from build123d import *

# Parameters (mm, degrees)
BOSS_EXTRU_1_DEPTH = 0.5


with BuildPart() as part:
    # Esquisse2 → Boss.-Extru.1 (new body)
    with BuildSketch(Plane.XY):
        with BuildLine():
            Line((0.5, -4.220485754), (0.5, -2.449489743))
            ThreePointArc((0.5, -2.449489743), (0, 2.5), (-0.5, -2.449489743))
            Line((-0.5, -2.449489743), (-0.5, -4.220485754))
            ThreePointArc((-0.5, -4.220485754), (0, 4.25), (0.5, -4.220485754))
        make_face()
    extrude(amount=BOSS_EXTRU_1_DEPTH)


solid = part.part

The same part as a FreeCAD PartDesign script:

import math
import FreeCAD as App
import Part
import Sketcher

V = App.Vector
Q = App.Units.Quantity

doc = App.newDocument("Part")
body = doc.addObject("PartDesign::Body", "Body")

sketch1 = doc.addObject("Sketcher::SketchObject", "Sketch")
body.addObject(sketch1)
sketch1.AttachmentSupport = (doc.XY_Plane, [""])
sketch1.MapMode = "FlatFace"
sketch1.addGeometry(Part.LineSegment(V(0.5, -2.4, 0), V(0.5, -4.2, 0)), False)
sketch1.addGeometry(Part.ArcOfCircle(Part.Circle(V(0, 0, 0), V(0, 0, 1), 4.2), math.radians(-83), math.radians(263)), False)
sketch1.addGeometry(Part.LineSegment(V(-0.5, -4.2, 0), V(-0.5, -2.4, 0)), False)
sketch1.addGeometry(Part.ArcOfCircle(Part.Circle(V(0, 0, 0), V(0, 0, 1), 2.5), math.radians(-78), math.radians(258)), False)
sketch1.addConstraint(Sketcher.Constraint("Coincident", 0, 2, 1, 1))
sketch1.addConstraint(Sketcher.Constraint("Coincident", 1, 2, 2, 1))
sketch1.addConstraint(Sketcher.Constraint("Coincident", 2, 2, 3, 2))
sketch1.addConstraint(Sketcher.Constraint("Coincident", 3, 1, 0, 1))
sketch1.addConstraint(Sketcher.Constraint("Vertical", 0))
sketch1.addConstraint(Sketcher.Constraint("Vertical", 2))
sketch1.addConstraint(Sketcher.Constraint("Coincident", 1, 3, -1, 1))
sketch1.addConstraint(Sketcher.Constraint("Coincident", 3, 3, -1, 1))
sketch1.addConstraint(Sketcher.Constraint("Horizontal", 0, 2, 1, 2))
sketch1.addConstraint(Sketcher.Constraint("Radius", 3, Q("2.5 mm")))
sketch1.addConstraint(Sketcher.Constraint("Radius", 1, Q("4.25 mm")))
sketch1.addConstraint(Sketcher.Constraint("DistanceX", 1, 2, 0, 2, Q("1 mm")))
pad1 = doc.addObject("PartDesign::Pad", "Pad")
body.addObject(pad1)
pad1.Profile = sketch1
pad1.Length = 0.5

doc.recompute()
